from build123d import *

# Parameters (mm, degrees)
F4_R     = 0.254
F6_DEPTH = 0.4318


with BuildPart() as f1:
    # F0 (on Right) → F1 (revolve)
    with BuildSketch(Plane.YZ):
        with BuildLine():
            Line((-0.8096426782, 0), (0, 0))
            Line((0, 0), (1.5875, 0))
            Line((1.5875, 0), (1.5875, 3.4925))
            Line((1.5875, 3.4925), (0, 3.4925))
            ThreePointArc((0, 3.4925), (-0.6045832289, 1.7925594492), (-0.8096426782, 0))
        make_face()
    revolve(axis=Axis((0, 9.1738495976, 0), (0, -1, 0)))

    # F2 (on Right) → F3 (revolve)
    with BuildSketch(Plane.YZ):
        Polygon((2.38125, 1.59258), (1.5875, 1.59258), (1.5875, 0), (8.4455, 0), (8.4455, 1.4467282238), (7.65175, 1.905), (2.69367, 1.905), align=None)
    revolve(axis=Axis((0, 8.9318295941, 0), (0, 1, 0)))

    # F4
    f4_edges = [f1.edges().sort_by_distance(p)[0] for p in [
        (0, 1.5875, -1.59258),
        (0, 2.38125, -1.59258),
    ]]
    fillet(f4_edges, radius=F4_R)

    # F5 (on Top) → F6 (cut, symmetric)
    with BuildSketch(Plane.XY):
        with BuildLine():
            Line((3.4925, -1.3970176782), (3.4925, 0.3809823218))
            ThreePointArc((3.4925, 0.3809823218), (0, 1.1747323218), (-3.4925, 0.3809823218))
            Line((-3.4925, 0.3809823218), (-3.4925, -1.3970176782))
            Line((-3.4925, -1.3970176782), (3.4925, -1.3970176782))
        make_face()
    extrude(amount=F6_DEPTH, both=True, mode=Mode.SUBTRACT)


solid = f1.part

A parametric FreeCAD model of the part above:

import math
import FreeCAD as App
import Part
import Sketcher
Q = App.Units.Quantity


def edges_at(feature, points):
    """Names of the edges that pass closest to the given points."""
    edges = feature.Shape.Edges
    near = lambda p: min(range(len(edges)), key=lambda i: edges[i].distToShape(Part.Vertex(*p))[0])
    return sorted({f"Edge{near(p) + 1}" for p in points})

doc = App.newDocument("Part")
body = doc.addObject("PartDesign::Body", "Body")

# Sketch on YZ plane
sketch1 = doc.addObject("Sketcher::SketchObject", "Sketch")
body.addObject(sketch1)
sketch1.AttachmentSupport = (doc.YZ_Plane, [""])
sketch1.MapMode = "FlatFace"
sketch1.addGeometry([
    Part.LineSegment(App.Vector(-0.8, 0, 0), App.Vector(1.6, 0, 0)),
    Part.LineSegment(App.Vector(1.6, 0, 0), App.Vector(1.6, 3.5, 0)),
    Part.LineSegment(App.Vector(1.6, 3.5, 0), App.Vector(0, 3.5, 0)),
    Part.ArcOfCircle(Part.Circle(App.Vector(7.1, 0, 0), App.Vector(0, 0, 1), 7.9), math.radians(154), math.radians(180)),
], False)
sketch1.addConstraint([
    Sketcher.Constraint("Coincident", 0, 2, 1, 1),
    Sketcher.Constraint("Coincident", 1, 2, 2, 1),
    Sketcher.Constraint("Coincident", 2, 2, 3, 1),
    Sketcher.Constraint("Coincident", 3, 2, 0, 1),
    Sketcher.Constraint("Horizontal", 0),
    Sketcher.Constraint("Vertical", 1),
    Sketcher.Constraint("Horizontal", 2),
    Sketcher.Constraint("PointOnObject", 3, 3, -1),
    Sketcher.Constraint("PointOnObject", 0, 2, -1),
    Sketcher.Constraint("PointOnObject", 2, 2, -2),
    Sketcher.Constraint("Radius", 3, Q("0.3125 in")),
    Sketcher.Constraint("DistanceX", 2, 2, 2, 1, Q("0.0625 in")),
    Sketcher.Constraint("DistanceY", 1, 1, 1, 2, Q("0.1375 in")),
])
revolution = doc.addObject("PartDesign::Revolution", "Revolution")
body.addObject(revolution)
revolution.Profile = sketch1
revolution.ReferenceAxis = (sketch1, ["H_Axis"])
revolution.Angle = 360

# Sketch on YZ plane
sketch2 = doc.addObject("Sketcher::SketchObject", "Sketch001")
body.addObject(sketch2)
sketch2.AttachmentSupport = (doc.YZ_Plane, [""])
sketch2.MapMode = "FlatFace"
sketch2.addGeometry([
    Part.LineSegment(App.Vector(2.38, 1.59, 0), App.Vector(1.59, 1.59, 0)),  # 0
    Part.LineSegment(App.Vector(1.59, 1.59, 0), App.Vector(1.59, 0, 0)),  # 1
    Part.LineSegment(App.Vector(1.59, 0, 0), App.Vector(8.45, 0, 0)),  # 2
    Part.LineSegment(App.Vector(8.45, 0, 0), App.Vector(8.45, 1.45, 0)),  # 3
    Part.LineSegment(App.Vector(8.45, 1.45, 0), App.Vector(7.65, 1.91, 0)),  # 4
    Part.LineSegment(App.Vector(7.65, 1.91, 0), App.Vector(2.69, 1.91, 0)),  # 5
    Part.LineSegment(App.Vector(2.69, 1.91, 0), App.Vector(2.38, 1.59, 0)),  # 6
], False)
sketch2.addConstraint([
    Sketcher.Constraint("Coincident", 0, 2, 1, 1),
    Sketcher.Constraint("Coincident", 1, 2, 2, 1),
    Sketcher.Constraint("Coincident", 2, 2, 3, 1),
    Sketcher.Constraint("Coincident", 3, 2, 4, 1),
    Sketcher.Constraint("Coincident", 4, 2, 5, 1),
    Sketcher.Constraint("Coincident", 5, 2, 6, 1),
    Sketcher.Constraint("Coincident", 6, 2, 0, 1),
    Sketcher.Constraint("Horizontal", 0),
    Sketcher.Constraint("Vertical", 1),
    Sketcher.Constraint("Horizontal", 2),
    Sketcher.Constraint("Vertical", 3),
    Sketcher.Constraint("Horizontal", 5),
    Sketcher.Constraint("PointOnObject", 1, 2, -1),
    Sketcher.Constraint("Angle", 4, Q("150 deg")),
    Sketcher.Constraint("Angle", 6, Q("-135 deg")),
    Sketcher.Constraint("DistanceX", 2, 1, 2, 2, Q("0.27 in")),
    Sketcher.Constraint("DistanceX", 0, 2, 0, 1, Q("0.03125 in")),
    Sketcher.Constraint("DistanceX", 5, 2, 5, 1, Q("0.1952 in")),
    Sketcher.Constraint("DistanceY", 1, 2, 1, 1, Q("0.0627 in")),
    Sketcher.Constraint("DistanceX", -1, 1, 0, 2, Q("0.0625 in")),
    Sketcher.Constraint("DistanceY", -1, 1, 4, 2, Q("0.075 in")),
])
revolution2 = doc.addObject("PartDesign::Revolution", "Revolution001")
body.addObject(revolution2)
revolution2.Profile = sketch2
revolution2.ReferenceAxis = (sketch2, ["H_Axis"])
revolution2.Angle = 360
doc.recompute()

fillet = doc.addObject("PartDesign::Fillet", "Fillet")
body.addObject(fillet)
fillet.Base = (revolution2, edges_at(revolution2, [(0, 1.587, -1.593), (0, 2.381, -1.593)]))
fillet.Radius = Q("0.01 in")

# Sketch on XY plane
sketch3 = doc.addObject("Sketcher::SketchObject", "Sketch002")
body.addObject(sketch3)
sketch3.AttachmentSupport = (doc.XY_Plane, [""])
sketch3.MapMode = "FlatFace"
sketch3.addGeometry([
    Part.LineSegment(App.Vector(3.5, -1.4, 0), App.Vector(3.5, 0.4, 0)),
    Part.ArcOfCircle(Part.Circle(App.Vector(0, -6.9, 0), App.Vector(0, 0, 1), 8.1), math.radians(64), math.radians(116)),
    Part.LineSegment(App.Vector(-3.5, 0.4, 0), App.Vector(-3.5, -1.4, 0)),
    Part.LineSegment(App.Vector(-3.5, -1.4, 0), App.Vector(3.5, -1.4, 0)),
], False)
sketch3.addConstraint([
    Sketcher.Constraint("Coincident", 0, 2, 1, 1),
    Sketcher.Constraint("Coincident", 1, 2, 2, 1),
    Sketcher.Constraint("Coincident", 2, 2, 3, 1),
    Sketcher.Constraint("Coincident", 3, 2, 0, 1),
    Sketcher.Constraint("Vertical", 0),
    Sketcher.Constraint("Vertical", 2),
    Sketcher.Constraint("Horizontal", 3),
    Sketcher.Constraint("Symmetric", 0, 2, 1, 2, -2),
    Sketcher.Constraint("DistanceY", 0, 1, 0, 2, Q("0.07 in")),
    Sketcher.Constraint("DistanceX", 3, 1, 3, 2, Q("0.275 in")),
    Sketcher.Constraint("Radius", 1, Q("8.080375 mm")),
    Sketcher.Constraint("DistanceY", 1, 3, -1, 1, Q("6.905643 mm")),
])
pocket1 = doc.addObject("PartDesign::Pocket", "Pocket")
body.addObject(pocket1)
pocket1.Profile = sketch3
pocket1.Length = Q("0.034 in")
pocket1.Midplane = True

doc.recompute()
